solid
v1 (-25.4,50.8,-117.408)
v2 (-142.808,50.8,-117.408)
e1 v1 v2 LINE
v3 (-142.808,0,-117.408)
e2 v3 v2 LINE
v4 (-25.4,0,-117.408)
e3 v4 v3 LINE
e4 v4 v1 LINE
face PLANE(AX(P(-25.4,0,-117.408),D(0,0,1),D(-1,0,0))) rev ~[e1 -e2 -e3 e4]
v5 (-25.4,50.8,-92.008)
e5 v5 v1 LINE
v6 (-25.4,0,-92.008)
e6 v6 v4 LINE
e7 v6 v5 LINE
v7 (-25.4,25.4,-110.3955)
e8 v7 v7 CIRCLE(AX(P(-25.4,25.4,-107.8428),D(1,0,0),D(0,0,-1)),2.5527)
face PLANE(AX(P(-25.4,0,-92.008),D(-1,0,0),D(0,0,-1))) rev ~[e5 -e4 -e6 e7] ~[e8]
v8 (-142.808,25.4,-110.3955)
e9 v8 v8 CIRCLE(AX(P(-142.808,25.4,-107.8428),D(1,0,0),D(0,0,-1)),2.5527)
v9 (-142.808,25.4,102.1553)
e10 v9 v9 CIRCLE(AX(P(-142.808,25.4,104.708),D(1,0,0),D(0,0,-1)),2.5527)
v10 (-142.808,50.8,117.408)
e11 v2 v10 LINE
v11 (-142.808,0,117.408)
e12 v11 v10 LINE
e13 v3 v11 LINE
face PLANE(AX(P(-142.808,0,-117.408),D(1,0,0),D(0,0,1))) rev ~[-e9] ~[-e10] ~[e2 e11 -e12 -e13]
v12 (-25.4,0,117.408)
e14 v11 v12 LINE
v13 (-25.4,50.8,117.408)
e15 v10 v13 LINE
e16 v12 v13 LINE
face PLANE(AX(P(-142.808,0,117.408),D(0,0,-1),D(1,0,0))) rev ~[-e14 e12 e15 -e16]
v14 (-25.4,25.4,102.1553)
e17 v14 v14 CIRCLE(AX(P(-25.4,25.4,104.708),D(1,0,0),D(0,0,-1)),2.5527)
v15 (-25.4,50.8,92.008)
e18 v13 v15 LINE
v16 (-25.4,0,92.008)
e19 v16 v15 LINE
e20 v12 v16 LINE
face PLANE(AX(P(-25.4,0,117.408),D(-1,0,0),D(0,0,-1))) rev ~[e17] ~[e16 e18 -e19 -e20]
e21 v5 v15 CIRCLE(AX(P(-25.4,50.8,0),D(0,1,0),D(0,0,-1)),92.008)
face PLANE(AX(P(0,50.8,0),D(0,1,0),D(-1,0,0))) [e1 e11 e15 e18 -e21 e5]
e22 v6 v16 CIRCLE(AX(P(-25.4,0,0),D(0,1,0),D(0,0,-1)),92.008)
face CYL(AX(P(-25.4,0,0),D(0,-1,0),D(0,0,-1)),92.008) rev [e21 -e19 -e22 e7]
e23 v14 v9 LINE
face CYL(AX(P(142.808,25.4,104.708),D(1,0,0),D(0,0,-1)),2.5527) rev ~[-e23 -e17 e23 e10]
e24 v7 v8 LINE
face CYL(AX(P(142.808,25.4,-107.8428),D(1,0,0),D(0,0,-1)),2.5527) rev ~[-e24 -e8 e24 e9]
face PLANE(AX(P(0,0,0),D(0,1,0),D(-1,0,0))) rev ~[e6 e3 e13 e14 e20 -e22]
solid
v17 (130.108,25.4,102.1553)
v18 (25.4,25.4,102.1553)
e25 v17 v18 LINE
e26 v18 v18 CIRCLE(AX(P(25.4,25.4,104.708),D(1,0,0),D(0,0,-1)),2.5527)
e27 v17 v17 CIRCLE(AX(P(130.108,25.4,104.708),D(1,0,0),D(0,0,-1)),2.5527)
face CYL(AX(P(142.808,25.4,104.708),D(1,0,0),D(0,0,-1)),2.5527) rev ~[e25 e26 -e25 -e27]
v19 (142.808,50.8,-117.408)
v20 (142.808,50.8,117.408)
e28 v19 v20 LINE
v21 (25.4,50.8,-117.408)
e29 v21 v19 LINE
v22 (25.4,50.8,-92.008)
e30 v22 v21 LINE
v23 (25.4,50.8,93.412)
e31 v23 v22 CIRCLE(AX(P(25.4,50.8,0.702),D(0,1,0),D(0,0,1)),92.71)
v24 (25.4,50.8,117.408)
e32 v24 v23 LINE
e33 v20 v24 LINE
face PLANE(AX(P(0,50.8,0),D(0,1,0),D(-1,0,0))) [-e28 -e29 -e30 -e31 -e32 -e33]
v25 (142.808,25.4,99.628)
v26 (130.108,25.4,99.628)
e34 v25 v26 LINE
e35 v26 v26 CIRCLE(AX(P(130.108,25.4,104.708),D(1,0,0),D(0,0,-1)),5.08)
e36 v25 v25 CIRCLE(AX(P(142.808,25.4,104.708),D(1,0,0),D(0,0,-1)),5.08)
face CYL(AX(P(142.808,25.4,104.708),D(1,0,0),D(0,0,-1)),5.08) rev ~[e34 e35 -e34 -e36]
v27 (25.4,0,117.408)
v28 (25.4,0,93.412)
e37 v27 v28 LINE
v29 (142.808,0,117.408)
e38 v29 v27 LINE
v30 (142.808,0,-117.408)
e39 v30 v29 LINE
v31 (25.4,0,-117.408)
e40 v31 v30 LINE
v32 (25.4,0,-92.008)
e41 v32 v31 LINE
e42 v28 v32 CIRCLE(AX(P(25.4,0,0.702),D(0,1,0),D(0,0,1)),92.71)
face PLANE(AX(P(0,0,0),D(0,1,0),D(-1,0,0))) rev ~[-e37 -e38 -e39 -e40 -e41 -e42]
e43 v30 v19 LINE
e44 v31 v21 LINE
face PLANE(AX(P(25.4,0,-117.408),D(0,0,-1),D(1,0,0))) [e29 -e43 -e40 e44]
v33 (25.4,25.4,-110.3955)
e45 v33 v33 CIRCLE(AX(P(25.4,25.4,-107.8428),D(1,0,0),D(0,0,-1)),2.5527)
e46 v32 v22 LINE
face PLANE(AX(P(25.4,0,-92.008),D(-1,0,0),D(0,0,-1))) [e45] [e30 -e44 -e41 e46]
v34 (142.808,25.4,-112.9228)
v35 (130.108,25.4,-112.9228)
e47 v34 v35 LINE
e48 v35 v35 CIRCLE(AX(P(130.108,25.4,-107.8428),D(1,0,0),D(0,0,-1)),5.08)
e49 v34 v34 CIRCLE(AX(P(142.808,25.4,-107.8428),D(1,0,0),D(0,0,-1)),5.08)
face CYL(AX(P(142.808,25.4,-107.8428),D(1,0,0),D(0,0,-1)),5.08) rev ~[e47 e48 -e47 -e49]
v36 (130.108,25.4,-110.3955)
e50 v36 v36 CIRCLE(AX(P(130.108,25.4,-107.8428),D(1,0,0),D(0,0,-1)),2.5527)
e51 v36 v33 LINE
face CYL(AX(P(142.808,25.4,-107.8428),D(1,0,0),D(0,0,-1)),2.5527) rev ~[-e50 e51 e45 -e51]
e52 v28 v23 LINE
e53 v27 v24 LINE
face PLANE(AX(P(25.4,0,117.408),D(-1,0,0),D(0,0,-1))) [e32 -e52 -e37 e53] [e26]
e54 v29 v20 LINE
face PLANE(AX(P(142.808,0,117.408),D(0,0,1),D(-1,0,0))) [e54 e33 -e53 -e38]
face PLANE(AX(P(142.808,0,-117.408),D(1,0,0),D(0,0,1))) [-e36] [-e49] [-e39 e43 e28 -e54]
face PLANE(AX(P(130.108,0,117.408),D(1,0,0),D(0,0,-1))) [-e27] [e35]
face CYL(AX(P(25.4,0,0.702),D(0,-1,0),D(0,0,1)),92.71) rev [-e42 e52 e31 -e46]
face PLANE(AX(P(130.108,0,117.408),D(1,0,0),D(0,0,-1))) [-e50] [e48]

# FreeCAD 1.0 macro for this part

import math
import FreeCAD as App
import Part
import Sketcher
Q = App.Units.Quantity

doc = App.newDocument("Part")
body = doc.addObject("PartDesign::Body", "Body")
body.AllowCompound = True

# Sketch on XZ plane
sketch1 = body.newObject("Sketcher::SketchObject", "Sketch")
sketch1.AttachmentSupport = (doc.getObject("XZ_Plane"), [""])
sketch1.MapMode = "FlatFace"
sketch1.addGeometry(Part.LineSegment(App.Vector(-25, -92, 0), App.Vector(-25, -117, 0)), False)
sketch1.addGeometry(Part.LineSegment(App.Vector(-25, -117, 0), App.Vector(-143, -117, 0)), False)
sketch1.addGeometry(Part.LineSegment(App.Vector(-143, -117, 0), App.Vector(-143, 117, 0)), False)
sketch1.addGeometry(Part.LineSegment(App.Vector(-143, 117, 0), App.Vector(-25, 117, 0)), False)
sketch1.addGeometry(Part.LineSegment(App.Vector(-25, 117, 0), App.Vector(-25, 92, 0)), False)
sketch1.addGeometry(Part.ArcOfCircle(Part.Circle(App.Vector(-25, 0, 0), App.Vector(0, 0, 1), 92), math.radians(90), math.radians(270)), False)
sketch1.addGeometry(Part.LineSegment(App.Vector(143, -117, 0), App.Vector(25, -117, 0)), False)
sketch1.addGeometry(Part.LineSegment(App.Vector(25, -117, 0), App.Vector(25, -92, 0)), False)
sketch1.addGeometry(Part.ArcOfCircle(Part.Circle(App.Vector(25, 1, 0), App.Vector(0, 0, 1), 93), math.radians(-90), math.radians(90)), False)
sketch1.addGeometry(Part.LineSegment(App.Vector(25, 93, 0), App.Vector(25, 117, 0)), False)
sketch1.addGeometry(Part.LineSegment(App.Vector(25, 117, 0), App.Vector(143, 117, 0)), False)
sketch1.addGeometry(Part.LineSegment(App.Vector(143, 117, 0), App.Vector(143, -117, 0)), False)
sketch1.addConstraint(Sketcher.Constraint("Coincident", 0, 2, 1, 1))
sketch1.addConstraint(Sketcher.Constraint("Coincident", 1, 2, 2, 1))
sketch1.addConstraint(Sketcher.Constraint("Coincident", 2, 2, 3, 1))
sketch1.addConstraint(Sketcher.Constraint("Coincident", 3, 2, 4, 1))
sketch1.addConstraint(Sketcher.Constraint("Coincident", 4, 2, 5, 1))
sketch1.addConstraint(Sketcher.Constraint("Coincident", 5, 2, 0, 1))
sketch1.addConstraint(Sketcher.Constraint("Coincident", 6, 2, 7, 1))
sketch1.addConstraint(Sketcher.Constraint("Coincident", 7, 2, 8, 1))
sketch1.addConstraint(Sketcher.Constraint("Coincident", 8, 2, 9, 1))
sketch1.addConstraint(Sketcher.Constraint("Coincident", 9, 2, 10, 1))
sketch1.addConstraint(Sketcher.Constraint("Coincident", 10, 2, 11, 1))
sketch1.addConstraint(Sketcher.Constraint("Coincident", 11, 2, 6, 1))
sketch1.addConstraint(Sketcher.Constraint("Vertical", 0))
sketch1.addConstraint(Sketcher.Constraint("Horizontal", 1))
sketch1.addConstraint(Sketcher.Constraint("Vertical", 2))
sketch1.addConstraint(Sketcher.Constraint("Horizontal", 3))
sketch1.addConstraint(Sketcher.Constraint("Vertical", 4))
sketch1.addConstraint(Sketcher.Constraint("Horizontal", 6))
sketch1.addConstraint(Sketcher.Constraint("Vertical", 7))
sketch1.addConstraint(Sketcher.Constraint("Vertical", 9))
sketch1.addConstraint(Sketcher.Constraint("Horizontal", 10))
sketch1.addConstraint(Sketcher.Constraint("Vertical", 11))
sketch1.addConstraint(Sketcher.Constraint("Symmetric", 3, 2, 6, 2, -1, 1))
sketch1.addConstraint(Sketcher.Constraint("Symmetric", 0, 2, 9, 2, -1, 1))
sketch1.addConstraint(Sketcher.Constraint("Symmetric", 0, 2, 6, 2, -2))
sketch1.addConstraint(Sketcher.Constraint("PointOnObject", 5, 3, -1))
sketch1.addConstraint(Sketcher.Constraint("Horizontal", 5, 2, 7, 2))
sketch1.addConstraint(Sketcher.Constraint("Vertical", 5, 3, 0, 2))
sketch1.addConstraint(Sketcher.Constraint("Vertical", 8, 3, 6, 2))
sketch1.addConstraint(Sketcher.Constraint("Equal", 3, 6))
sketch1.addConstraint(Sketcher.Constraint("DistanceY", 0, 2, 0, 1, Q("1 in")))
sketch1.addConstraint(Sketcher.Constraint("Radius", 8, Q("3.65 in")))
sketch1.addConstraint(Sketcher.Constraint("DistanceX", 5, 3, -1, 1, Q("1 in")))
sketch1.addConstraint(Sketcher.Constraint("Radius", 5, Q("92.008 mm")))
sketch1.addConstraint(Sketcher.Constraint("DistanceX", 1, 2, 1, 1, Q("117.408 mm")))
pad1 = body.newObject("PartDesign::Pad", "Pad")
pad1.Profile = sketch1
pad1.Length = Q("2 in")
pad1.Reversed = True

# Sketch on YZ plane
sketch2 = body.newObject("Sketcher::SketchObject", "Sketch001")
sketch2.AttachmentSupport = (doc.getObject("YZ_Plane"), [""])
sketch2.MapMode = "FlatFace"
sketch2.AttachmentOffset = App.Placement(App.Vector(0, 0, 142.808), App.Rotation())
sketch2.addGeometry(Part.Circle(App.Vector(25.4, 104.7, 0), App.Vector(0, 0, 1), 2.6), False)
sketch2.addGeometry(Part.Circle(App.Vector(25.4, -107.8, 0), App.Vector(0, 0, 1), 2.6), False)
sketch2.addConstraint(Sketcher.Constraint("Equal", 0, 1))
sketch2.addConstraint(Sketcher.Constraint("Vertical", 0, 3, 1, 3))
sketch2.addConstraint(Sketcher.Constraint("Diameter", 0, Q("0.201 in")))
sketch2.addConstraint(Sketcher.Constraint("DistanceX", -1, 1, 0, 3, Q("1 in")))
sketch2.addConstraint(Sketcher.Constraint("DistanceY", -1, 1, 0, 3, Q("104.708 mm")))
sketch2.addConstraint(Sketcher.Constraint("DistanceY", 1, 3, -1, 1, Q("107.8428 mm")))
pocket1 = body.newObject("PartDesign::Pocket", "Pocket")
pocket1.Profile = sketch2
pocket1.Type = "ThroughAll"

# Sketch on YZ plane
sketch3 = body.newObject("Sketcher::SketchObject", "Sketch002")
sketch3.AttachmentSupport = (doc.getObject("YZ_Plane"), [""])
sketch3.MapMode = "FlatFace"
sketch3.AttachmentOffset = App.Placement(App.Vector(0, 0, 142.808), App.Rotation())
sketch3.addGeometry(Part.Circle(App.Vector(25.4, 104.7, 0), App.Vector(0, 0, 1), 5.1), False)
sketch3.addGeometry(Part.Circle(App.Vector(25.4, 104.7, 0), App.Vector(0, 0, 1), 2.6), False)
sketch3.addGeometry(Part.Circle(App.Vector(25.4, -107.8, 0), App.Vector(0, 0, 1), 5.1), False)
sketch3.addGeometry(Part.Circle(App.Vector(25.4, -107.8, 0), App.Vector(0, 0, 1), 2.6), False)
sketch3.addConstraint(Sketcher.Constraint("Coincident", 1, 3, 0, 3))
sketch3.addConstraint(Sketcher.Constraint("Coincident", 3, 3, 2, 3))
sketch3.addConstraint(Sketcher.Constraint("Equal", 0, 2))
sketch3.addConstraint(Sketcher.Constraint("Equal", 1, 3))
sketch3.addConstraint(Sketcher.Constraint("Vertical", 1, 3, 2, 3))
sketch3.addConstraint(Sketcher.Constraint("Diameter", 0, Q("0.4 in")))
sketch3.addConstraint(Sketcher.Constraint("Diameter", 1, Q("0.201 in")))
sketch3.addConstraint(Sketcher.Constraint("DistanceX", -1, 1, 0, 3, Q("1 in")))
sketch3.addConstraint(Sketcher.Constraint("DistanceY", -1, 1, 0, 3, Q("104.708 mm")))
sketch3.addConstraint(Sketcher.Constraint("DistanceY", 2, 3, -1, 1, Q("107.8428 mm")))
pocket2 = body.newObject("PartDesign::Pocket", "Pocket001")
pocket2.Profile = sketch3
pocket2.Length = Q("0.5 in")

doc.recompute()
